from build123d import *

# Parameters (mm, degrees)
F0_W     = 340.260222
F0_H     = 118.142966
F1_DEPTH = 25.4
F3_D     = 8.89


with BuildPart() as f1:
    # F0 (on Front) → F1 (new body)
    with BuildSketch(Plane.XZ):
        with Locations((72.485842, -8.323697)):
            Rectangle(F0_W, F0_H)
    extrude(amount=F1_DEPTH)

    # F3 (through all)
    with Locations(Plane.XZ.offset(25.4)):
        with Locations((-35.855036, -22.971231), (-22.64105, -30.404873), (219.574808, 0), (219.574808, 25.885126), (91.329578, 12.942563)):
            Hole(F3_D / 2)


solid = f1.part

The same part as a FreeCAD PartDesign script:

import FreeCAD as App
import Part
import Sketcher
Q = App.Units.Quantity


def add_polygon(sketch, points):
    """Adds a closed chain of lines whose ends are joined by coincident constraints."""
    first, n = sketch.GeometryCount, len(points)
    for a, b in zip(points, points[1:] + points[:1]):
        sketch.addGeometry(Part.LineSegment(App.Vector(*a, 0), App.Vector(*b, 0)), False)
    for i in range(n):
        sketch.addConstraint(Sketcher.Constraint("Coincident", first + i, 2, first + (i + 1) % n, 1))

doc = App.newDocument("Part")
params = doc.addObject("Spreadsheet::Sheet", "Params")
for row, (alias, value) in enumerate([
    ("pad1_length", "1 in"),
    ("sketch2_diameter", "0.35 in"),
    ("hole_diameter", "0.35 in"),
], start=1):
    params.set(f"A{row}", alias)
    params.set(f"B{row}", "=" + value)
    params.setAlias(f"B{row}", alias)

body = doc.addObject("PartDesign::Body", "Body")

sketch1 = body.newObject("Sketcher::SketchObject", "Sketch")
sketch1.AttachmentSupport = (doc.getObject("XZ_Plane"), [""])
sketch1.MapMode = "FlatFace"
add_polygon(sketch1, [(-98, 51), (-98, -67), (243, -67), (243, 51)])
sketch1.addConstraint([
    Sketcher.Constraint("Vertical", 0),
    Sketcher.Constraint("Horizontal", 1),
    Sketcher.Constraint("Vertical", 2),
    Sketcher.Constraint("Horizontal", 3),
    Sketcher.Constraint("DistanceX", 1, 1, 1, 2, 340.260222),
    Sketcher.Constraint("DistanceY", 0, 2, 0, 1, 118.142966),
    Sketcher.Constraint("DistanceX", 0, 2, -1, 1, 97.644269),
    Sketcher.Constraint("DistanceY", 0, 2, -1, 1, 67.39518),
])
pad1 = body.newObject("PartDesign::Pad", "Pad")
pad1.Profile = sketch1
pad1.setExpression("Length", "Params.pad1_length")

sketch2 = body.newObject("Sketcher::SketchObject", "Sketch001")
sketch2.AttachmentSupport = (doc.getObject("XZ_Plane"), [""])
sketch2.MapMode = "FlatFace"
sketch2.AttachmentOffset = App.Placement(App.Vector(0, 0, 1 * 25.4), App.Rotation())
sketch2.addGeometry([
    Part.Circle(App.Vector(-35.9, -23, 0), App.Vector(0, 0, 1), 4.4),
    Part.Circle(App.Vector(-22.6, -30.4, 0), App.Vector(0, 0, 1), 4.4),
    Part.Circle(App.Vector(219.6, 0, 0), App.Vector(0, 0, 1), 4.4),
    Part.Circle(App.Vector(219.6, 25.9, 0), App.Vector(0, 0, 1), 4.4),
    Part.Circle(App.Vector(91.3, 12.9, 0), App.Vector(0, 0, 1), 4.4),
], False)
sketch2.addConstraint([
    Sketcher.Constraint("Equal", 0, 1),
    Sketcher.Constraint("Equal", 1, 2),
    Sketcher.Constraint("Equal", 2, 3),
    Sketcher.Constraint("Equal", 3, 4),
    Sketcher.Constraint("PointOnObject", 2, 3, -1),
    Sketcher.Constraint("Vertical", 2, 3, 3, 3),
    Sketcher.Constraint("Diameter", 0, Q("0.35 in")),
    Sketcher.Constraint("DistanceY", 1, 3, 3, 3, 56.289999),
    Sketcher.Constraint("DistanceY", 0, 3, -1, 1, 22.971231),
    Sketcher.Constraint("DistanceX", 1, 3, -1, 1, 22.64105),
    Sketcher.Constraint("DistanceY", 1, 3, 0, 3, 7.433642),
    Sketcher.Constraint("DistanceX", 1, 3, 2, 3, 242.215858),
    Sketcher.Constraint("DistanceX", 1, 3, 4, 3, 113.970628),
    Sketcher.Constraint("DistanceX", 0, 3, -1, 1, 35.855036),
    Sketcher.Constraint("DistanceY", -1, 1, 4, 3, 12.942563),
])
sketch2.setExpression("Constraints[6]", "Params.sketch2_diameter")
doc.recompute()
hole = body.newObject("PartDesign::Hole", "Hole")
hole.Profile = sketch2
hole.ThreadType = "None"
hole.setExpression("Diameter", "Params.hole_diameter")
hole.DepthType = "ThroughAll"

doc.recompute()
